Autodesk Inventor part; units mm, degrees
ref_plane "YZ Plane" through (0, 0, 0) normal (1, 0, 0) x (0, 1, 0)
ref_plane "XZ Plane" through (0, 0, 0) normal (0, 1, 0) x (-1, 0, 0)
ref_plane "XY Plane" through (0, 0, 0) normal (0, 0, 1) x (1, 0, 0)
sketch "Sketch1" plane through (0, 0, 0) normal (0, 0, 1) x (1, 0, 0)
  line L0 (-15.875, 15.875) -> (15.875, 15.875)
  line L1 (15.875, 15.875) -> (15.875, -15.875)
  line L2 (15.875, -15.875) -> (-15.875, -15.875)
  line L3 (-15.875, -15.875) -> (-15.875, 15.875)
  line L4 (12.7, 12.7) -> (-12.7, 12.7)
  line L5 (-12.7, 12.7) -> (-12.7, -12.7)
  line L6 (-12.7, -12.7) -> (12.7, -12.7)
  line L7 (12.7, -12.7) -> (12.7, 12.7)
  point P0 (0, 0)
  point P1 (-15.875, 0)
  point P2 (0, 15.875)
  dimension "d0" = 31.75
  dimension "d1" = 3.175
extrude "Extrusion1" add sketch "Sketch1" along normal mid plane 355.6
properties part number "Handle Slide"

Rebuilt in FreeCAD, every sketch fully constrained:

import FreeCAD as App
import Part
import Sketcher

V = App.Vector
Q = App.Units.Quantity

doc = App.newDocument("Part")
body = doc.addObject("PartDesign::Body", "Body")

# Sketch on XY plane
sketch1 = doc.addObject("Sketcher::SketchObject", "Sketch")
body.addObject(sketch1)
sketch1.AttachmentSupport = (doc.XY_Plane, [""])
sketch1.MapMode = "FlatFace"
sketch1.addGeometry(Part.LineSegment(V(16, 16, 0), V(-16, 16, 0)), False)
sketch1.addGeometry(Part.LineSegment(V(-16, 16, 0), V(-16, -16, 0)), False)
sketch1.addGeometry(Part.LineSegment(V(-16, -16, 0), V(16, -16, 0)), False)
sketch1.addGeometry(Part.LineSegment(V(16, -16, 0), V(16, 16, 0)), False)
sketch1.addGeometry(Part.LineSegment(V(-13, 13, 0), V(13, 13, 0)), False)
sketch1.addGeometry(Part.LineSegment(V(13, 13, 0), V(13, -13, 0)), False)
sketch1.addGeometry(Part.LineSegment(V(13, -13, 0), V(-13, -13, 0)), False)
sketch1.addGeometry(Part.LineSegment(V(-13, -13, 0), V(-13, 13, 0)), False)
sketch1.addConstraint(Sketcher.Constraint("Coincident", 0, 2, 1, 1))
sketch1.addConstraint(Sketcher.Constraint("Coincident", 1, 2, 2, 1))
sketch1.addConstraint(Sketcher.Constraint("Coincident", 2, 2, 3, 1))
sketch1.addConstraint(Sketcher.Constraint("Coincident", 3, 2, 0, 1))
sketch1.addConstraint(Sketcher.Constraint("Coincident", 4, 2, 5, 1))
sketch1.addConstraint(Sketcher.Constraint("Coincident", 5, 2, 6, 1))
sketch1.addConstraint(Sketcher.Constraint("Coincident", 6, 2, 7, 1))
sketch1.addConstraint(Sketcher.Constraint("Coincident", 7, 2, 4, 1))
sketch1.addConstraint(Sketcher.Constraint("Horizontal", 0))
sketch1.addConstraint(Sketcher.Constraint("Vertical", 1))
sketch1.addConstraint(Sketcher.Constraint("Horizontal", 2))
sketch1.addConstraint(Sketcher.Constraint("Vertical", 3))
sketch1.addConstraint(Sketcher.Constraint("Horizontal", 4))
sketch1.addConstraint(Sketcher.Constraint("Vertical", 5))
sketch1.addConstraint(Sketcher.Constraint("Horizontal", 6))
sketch1.addConstraint(Sketcher.Constraint("Vertical", 7))
sketch1.addConstraint(Sketcher.Constraint("Symmetric", 0, 2, 2, 2, -1, 1))
sketch1.addConstraint(Sketcher.Constraint("Symmetric", 4, 2, 6, 2, -1, 1))
sketch1.addConstraint(Sketcher.Constraint("Equal", 2, 1))
sketch1.addConstraint(Sketcher.Constraint("Equal", 6, 5))
sketch1.addConstraint(Sketcher.Constraint("DistanceX", 0, 2, 0, 1, Q("1.25 in")))
sketch1.addConstraint(Sketcher.Constraint("DistanceX", 4, 1, 4, 2, Q("1 in")))
pad1 = doc.addObject("PartDesign::Pad", "Pad")
body.addObject(pad1)
pad1.Profile = sketch1
pad1.Length = Q("14 in")
pad1.Midplane = True

doc.recompute()
